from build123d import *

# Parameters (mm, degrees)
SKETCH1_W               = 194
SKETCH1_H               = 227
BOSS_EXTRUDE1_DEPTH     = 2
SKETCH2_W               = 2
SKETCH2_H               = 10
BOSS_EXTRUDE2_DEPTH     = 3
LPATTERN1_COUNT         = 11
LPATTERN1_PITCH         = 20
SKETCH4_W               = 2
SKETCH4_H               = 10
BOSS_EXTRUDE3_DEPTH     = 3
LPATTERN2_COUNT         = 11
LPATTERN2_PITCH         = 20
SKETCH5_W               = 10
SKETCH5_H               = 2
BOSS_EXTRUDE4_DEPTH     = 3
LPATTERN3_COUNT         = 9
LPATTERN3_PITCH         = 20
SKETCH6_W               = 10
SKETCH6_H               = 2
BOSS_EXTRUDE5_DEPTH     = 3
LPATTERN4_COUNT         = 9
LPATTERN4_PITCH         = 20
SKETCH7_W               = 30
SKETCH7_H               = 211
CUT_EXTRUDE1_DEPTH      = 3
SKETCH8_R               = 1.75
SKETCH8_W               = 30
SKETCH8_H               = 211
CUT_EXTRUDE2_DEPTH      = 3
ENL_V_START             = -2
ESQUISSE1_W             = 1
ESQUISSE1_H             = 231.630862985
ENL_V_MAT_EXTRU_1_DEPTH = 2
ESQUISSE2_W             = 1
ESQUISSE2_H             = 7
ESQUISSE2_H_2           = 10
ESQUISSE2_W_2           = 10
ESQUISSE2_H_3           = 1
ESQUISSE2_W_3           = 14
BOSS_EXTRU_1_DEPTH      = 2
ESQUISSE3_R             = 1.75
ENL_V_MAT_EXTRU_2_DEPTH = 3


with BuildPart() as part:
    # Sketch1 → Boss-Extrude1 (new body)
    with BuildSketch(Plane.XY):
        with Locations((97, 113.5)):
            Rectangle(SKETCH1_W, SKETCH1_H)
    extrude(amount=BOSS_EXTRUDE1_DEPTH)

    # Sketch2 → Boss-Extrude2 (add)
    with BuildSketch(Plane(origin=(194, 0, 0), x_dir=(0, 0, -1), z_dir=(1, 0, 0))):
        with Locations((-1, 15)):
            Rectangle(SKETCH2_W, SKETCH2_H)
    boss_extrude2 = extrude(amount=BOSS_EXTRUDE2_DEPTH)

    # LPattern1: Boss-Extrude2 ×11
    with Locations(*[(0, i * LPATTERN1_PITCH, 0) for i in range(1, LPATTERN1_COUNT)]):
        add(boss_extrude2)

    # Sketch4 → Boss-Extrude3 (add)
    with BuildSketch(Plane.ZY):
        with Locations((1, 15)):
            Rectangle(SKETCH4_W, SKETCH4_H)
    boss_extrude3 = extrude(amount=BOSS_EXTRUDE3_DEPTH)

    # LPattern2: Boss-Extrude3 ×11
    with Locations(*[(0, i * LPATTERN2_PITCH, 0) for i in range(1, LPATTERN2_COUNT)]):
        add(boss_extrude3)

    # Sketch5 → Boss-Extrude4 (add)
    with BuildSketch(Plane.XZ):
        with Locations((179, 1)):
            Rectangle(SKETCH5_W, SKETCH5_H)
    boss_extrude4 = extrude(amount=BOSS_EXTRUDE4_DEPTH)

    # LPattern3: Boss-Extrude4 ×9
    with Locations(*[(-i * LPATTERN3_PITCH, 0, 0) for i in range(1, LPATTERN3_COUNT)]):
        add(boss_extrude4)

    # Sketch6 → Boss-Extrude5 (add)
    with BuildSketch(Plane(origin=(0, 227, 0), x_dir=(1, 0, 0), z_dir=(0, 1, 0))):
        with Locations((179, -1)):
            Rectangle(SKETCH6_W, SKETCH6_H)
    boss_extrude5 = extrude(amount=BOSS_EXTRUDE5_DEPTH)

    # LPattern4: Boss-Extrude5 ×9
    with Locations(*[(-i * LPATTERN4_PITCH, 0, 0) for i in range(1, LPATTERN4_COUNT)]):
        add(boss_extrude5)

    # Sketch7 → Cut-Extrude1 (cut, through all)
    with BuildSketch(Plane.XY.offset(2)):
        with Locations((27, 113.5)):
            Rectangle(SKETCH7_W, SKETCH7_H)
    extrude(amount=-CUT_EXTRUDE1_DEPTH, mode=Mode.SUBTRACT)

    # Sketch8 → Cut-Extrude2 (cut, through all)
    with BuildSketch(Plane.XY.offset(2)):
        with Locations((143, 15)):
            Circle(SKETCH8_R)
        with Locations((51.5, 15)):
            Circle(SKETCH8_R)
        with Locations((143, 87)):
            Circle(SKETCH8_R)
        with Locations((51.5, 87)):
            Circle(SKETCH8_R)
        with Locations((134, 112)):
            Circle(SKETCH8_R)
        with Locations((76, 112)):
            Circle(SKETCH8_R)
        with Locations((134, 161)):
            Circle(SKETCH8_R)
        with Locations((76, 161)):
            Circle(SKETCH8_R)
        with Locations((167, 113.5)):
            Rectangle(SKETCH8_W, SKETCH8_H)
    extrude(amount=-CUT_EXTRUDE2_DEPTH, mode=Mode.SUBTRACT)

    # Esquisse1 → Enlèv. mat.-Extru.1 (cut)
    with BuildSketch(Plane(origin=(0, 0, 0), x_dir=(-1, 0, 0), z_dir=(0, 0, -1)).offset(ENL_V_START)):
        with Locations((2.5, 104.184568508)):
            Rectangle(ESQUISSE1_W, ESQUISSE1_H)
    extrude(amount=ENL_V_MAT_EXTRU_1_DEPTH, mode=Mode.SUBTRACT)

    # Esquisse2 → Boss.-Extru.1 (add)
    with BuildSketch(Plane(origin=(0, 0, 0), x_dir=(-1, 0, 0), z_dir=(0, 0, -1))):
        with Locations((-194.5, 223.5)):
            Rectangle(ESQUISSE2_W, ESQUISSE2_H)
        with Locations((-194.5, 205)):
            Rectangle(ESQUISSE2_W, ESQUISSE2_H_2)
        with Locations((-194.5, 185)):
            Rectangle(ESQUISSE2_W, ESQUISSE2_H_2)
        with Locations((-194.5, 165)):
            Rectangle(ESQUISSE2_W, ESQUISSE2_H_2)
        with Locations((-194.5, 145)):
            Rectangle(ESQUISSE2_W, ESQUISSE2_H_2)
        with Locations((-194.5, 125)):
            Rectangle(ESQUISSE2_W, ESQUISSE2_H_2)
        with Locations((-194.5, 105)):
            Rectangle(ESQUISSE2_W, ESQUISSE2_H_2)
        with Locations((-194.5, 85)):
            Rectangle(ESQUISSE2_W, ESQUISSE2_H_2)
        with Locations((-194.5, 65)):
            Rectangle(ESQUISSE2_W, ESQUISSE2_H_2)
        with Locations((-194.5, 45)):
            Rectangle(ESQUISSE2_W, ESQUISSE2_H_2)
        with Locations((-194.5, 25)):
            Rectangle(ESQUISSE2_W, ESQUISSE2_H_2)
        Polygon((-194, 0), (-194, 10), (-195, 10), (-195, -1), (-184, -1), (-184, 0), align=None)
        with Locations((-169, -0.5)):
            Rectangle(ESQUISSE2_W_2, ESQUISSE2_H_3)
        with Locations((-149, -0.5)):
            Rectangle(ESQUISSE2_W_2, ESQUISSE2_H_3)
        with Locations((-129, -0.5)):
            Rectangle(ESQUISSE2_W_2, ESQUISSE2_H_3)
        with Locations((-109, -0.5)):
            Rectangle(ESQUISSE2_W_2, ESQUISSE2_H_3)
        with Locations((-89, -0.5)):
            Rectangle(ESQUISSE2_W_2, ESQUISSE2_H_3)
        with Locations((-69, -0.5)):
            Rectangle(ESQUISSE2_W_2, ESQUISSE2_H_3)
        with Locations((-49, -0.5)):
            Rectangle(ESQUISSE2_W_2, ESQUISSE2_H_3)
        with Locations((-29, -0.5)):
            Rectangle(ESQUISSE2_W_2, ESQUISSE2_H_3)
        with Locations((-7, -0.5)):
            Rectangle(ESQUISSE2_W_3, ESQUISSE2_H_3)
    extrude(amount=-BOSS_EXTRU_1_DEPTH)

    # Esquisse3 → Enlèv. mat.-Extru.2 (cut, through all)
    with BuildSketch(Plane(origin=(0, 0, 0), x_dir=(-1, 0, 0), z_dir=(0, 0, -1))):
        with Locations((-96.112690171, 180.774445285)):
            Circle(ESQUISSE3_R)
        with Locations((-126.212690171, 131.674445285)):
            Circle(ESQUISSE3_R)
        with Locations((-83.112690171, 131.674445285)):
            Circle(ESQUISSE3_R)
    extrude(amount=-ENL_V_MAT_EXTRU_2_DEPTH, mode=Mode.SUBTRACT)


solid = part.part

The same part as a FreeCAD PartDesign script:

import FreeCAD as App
import Part
import Sketcher

V = App.Vector
Q = App.Units.Quantity

doc = App.newDocument("Part")
body = doc.addObject("PartDesign::Body", "Body")

# Sketch on XY plane
sketch1 = body.newObject("Sketcher::SketchObject", "Sketch")
sketch1.AttachmentSupport = (doc.getObject("XY_Plane"), [""])
sketch1.MapMode = "FlatFace"
sketch1.addGeometry([
    Part.LineSegment(V(0, 227, 0), V(0, 0, 0)),
    Part.LineSegment(V(0, 0, 0), V(194, 0, 0)),
    Part.LineSegment(V(194, 0, 0), V(194, 227, 0)),
    Part.LineSegment(V(194, 227, 0), V(0, 227, 0)),
], False)
sketch1.addConstraint([
    Sketcher.Constraint("Coincident", 0, 2, 1, 1),
    Sketcher.Constraint("Coincident", 1, 2, 2, 1),
    Sketcher.Constraint("Coincident", 2, 2, 3, 1),
    Sketcher.Constraint("Coincident", 3, 2, 0, 1),
    Sketcher.Constraint("Vertical", 0),
    Sketcher.Constraint("Horizontal", 1),
    Sketcher.Constraint("Vertical", 2),
    Sketcher.Constraint("Horizontal", 3),
    Sketcher.Constraint("Coincident", 0, 2, -1, 1),
    Sketcher.Constraint("DistanceX", 1, 1, 1, 2, Q("194 mm")),
    Sketcher.Constraint("DistanceY", 0, 2, 0, 1, Q("227 mm")),
])
pad1 = body.newObject("PartDesign::Pad", "Pad")
pad1.Profile = sketch1
pad1.Length = 2

# Sketch on YZ plane
sketch2 = body.newObject("Sketcher::SketchObject", "Sketch001")
sketch2.AttachmentSupport = (doc.getObject("YZ_Plane"), [""])
sketch2.MapMode = "FlatFace"
sketch2.AttachmentOffset = App.Placement(V(0, 0, 194), App.Rotation())
sketch2.addGeometry([
    Part.LineSegment(V(20, 2, 0), V(10, 2, 0)),
    Part.LineSegment(V(10, 2, 0), V(10, 0, 0)),
    Part.LineSegment(V(10, 0, 0), V(20, 0, 0)),
    Part.LineSegment(V(20, 0, 0), V(20, 2, 0)),
], False)
sketch2.addConstraint([
    Sketcher.Constraint("Coincident", 0, 2, 1, 1),
    Sketcher.Constraint("Coincident", 1, 2, 2, 1),
    Sketcher.Constraint("Coincident", 2, 2, 3, 1),
    Sketcher.Constraint("Coincident", 3, 2, 0, 1),
    Sketcher.Constraint("Horizontal", 0),
    Sketcher.Constraint("Vertical", 1),
    Sketcher.Constraint("Horizontal", 2),
    Sketcher.Constraint("Vertical", 3),
    Sketcher.Constraint("PointOnObject", 1, 2, -1),
    Sketcher.Constraint("DistanceX", 0, 2, 0, 1, Q("10 mm")),
    Sketcher.Constraint("DistanceY", 1, 2, 1, 1, Q("2 mm")),
    Sketcher.Constraint("DistanceX", -1, 1, 0, 2, Q("10 mm")),
])
pad2 = body.newObject("PartDesign::Pad", "Pad001")
pad2.Profile = sketch2
pad2.Length = 3
doc.recompute()

linearpattern = body.newObject("PartDesign::LinearPattern", "LinearPattern")
linearpattern.Originals = [pad2]
linearpattern.Direction = (doc.getObject("Y_Axis"), [""])
linearpattern.Mode = "offset"
linearpattern.Offset = 20
linearpattern.Occurrences = 11
body.Tip = linearpattern

# Sketch on YZ plane
sketch3 = body.newObject("Sketcher::SketchObject", "Sketch002")
sketch3.AttachmentSupport = (doc.getObject("YZ_Plane"), [""])
sketch3.MapMode = "FlatFace"
sketch3.addGeometry([
    Part.LineSegment(V(20, 0, 0), V(10, 0, 0)),
    Part.LineSegment(V(10, 0, 0), V(10, 2, 0)),
    Part.LineSegment(V(10, 2, 0), V(20, 2, 0)),
    Part.LineSegment(V(20, 2, 0), V(20, 0, 0)),
], False)
sketch3.addConstraint([
    Sketcher.Constraint("Coincident", 0, 2, 1, 1),
    Sketcher.Constraint("Coincident", 1, 2, 2, 1),
    Sketcher.Constraint("Coincident", 2, 2, 3, 1),
    Sketcher.Constraint("Coincident", 3, 2, 0, 1),
    Sketcher.Constraint("Horizontal", 0),
    Sketcher.Constraint("Vertical", 1),
    Sketcher.Constraint("Horizontal", 2),
    Sketcher.Constraint("Vertical", 3),
    Sketcher.Constraint("PointOnObject", 0, 2, -1),
    Sketcher.Constraint("DistanceX", 0, 2, 0, 1, Q("10 mm")),
    Sketcher.Constraint("DistanceY", 1, 1, 1, 2, Q("2 mm")),
    Sketcher.Constraint("DistanceX", -1, 1, 0, 2, Q("10 mm")),
])
pad3 = body.newObject("PartDesign::Pad", "Pad002")
pad3.Profile = sketch3
pad3.Length = 3
pad3.Reversed = True
doc.recompute()

linearpattern2 = body.newObject("PartDesign::LinearPattern", "LinearPattern001")
linearpattern2.Originals = [pad3]
linearpattern2.Direction = (doc.getObject("Y_Axis"), [""])
linearpattern2.Mode = "offset"
linearpattern2.Offset = 20
linearpattern2.Occurrences = 11
body.Tip = linearpattern2

# Sketch on XZ plane
sketch4 = body.newObject("Sketcher::SketchObject", "Sketch003")
sketch4.AttachmentSupport = (doc.getObject("XZ_Plane"), [""])
sketch4.MapMode = "FlatFace"
sketch4.addGeometry([
    Part.LineSegment(V(174, 2, 0), V(174, 0, 0)),
    Part.LineSegment(V(174, 0, 0), V(184, 0, 0)),
    Part.LineSegment(V(184, 0, 0), V(184, 2, 0)),
    Part.LineSegment(V(184, 2, 0), V(174, 2, 0)),
], False)
sketch4.addConstraint([
    Sketcher.Constraint("Coincident", 0, 2, 1, 1),
    Sketcher.Constraint("Coincident", 1, 2, 2, 1),
    Sketcher.Constraint("Coincident", 2, 2, 3, 1),
    Sketcher.Constraint("Coincident", 3, 2, 0, 1),
    Sketcher.Constraint("Vertical", 0),
    Sketcher.Constraint("Horizontal", 1),
    Sketcher.Constraint("Vertical", 2),
    Sketcher.Constraint("Horizontal", 3),
    Sketcher.Constraint("PointOnObject", 0, 2, -1),
    Sketcher.Constraint("DistanceX", 1, 1, 1, 2, Q("10 mm")),
    Sketcher.Constraint("DistanceY", 0, 2, 0, 1, Q("2 mm")),
    Sketcher.Constraint("DistanceX", -1, 1, 0, 2, Q("174 mm")),
])
pad4 = body.newObject("PartDesign::Pad", "Pad003")
pad4.Profile = sketch4
pad4.Length = 3
doc.recompute()

linearpattern3 = body.newObject("PartDesign::LinearPattern", "LinearPattern002")
linearpattern3.Originals = [pad4]
linearpattern3.Direction = (doc.getObject("X_Axis"), [""])
linearpattern3.Mode = "offset"
linearpattern3.Offset = 20
linearpattern3.Occurrences = 9
linearpattern3.Reversed = True
body.Tip = linearpattern3

# Sketch on XZ plane
sketch5 = body.newObject("Sketcher::SketchObject", "Sketch004")
sketch5.AttachmentSupport = (doc.getObject("XZ_Plane"), [""])
sketch5.MapMode = "FlatFace"
sketch5.AttachmentOffset = App.Placement(V(0, 0, -227), App.Rotation())
sketch5.addGeometry([
    Part.LineSegment(V(174, 0, 0), V(174, 2, 0)),
    Part.LineSegment(V(174, 2, 0), V(184, 2, 0)),
    Part.LineSegment(V(184, 2, 0), V(184, 0, 0)),
    Part.LineSegment(V(184, 0, 0), V(174, 0, 0)),
], False)
sketch5.addConstraint([
    Sketcher.Constraint("Coincident", 0, 2, 1, 1),
    Sketcher.Constraint("Coincident", 1, 2, 2, 1),
    Sketcher.Constraint("Coincident", 2, 2, 3, 1),
    Sketcher.Constraint("Coincident", 3, 2, 0, 1),
    Sketcher.Constraint("Vertical", 0),
    Sketcher.Constraint("Horizontal", 1),
    Sketcher.Constraint("Vertical", 2),
    Sketcher.Constraint("Horizontal", 3),
    Sketcher.Constraint("PointOnObject", 2, 2, -1),
    Sketcher.Constraint("DistanceX", 1, 1, 1, 2, Q("10 mm")),
    Sketcher.Constraint("DistanceY", 0, 1, 0, 2, Q("2 mm")),
    Sketcher.Constraint("DistanceX", -1, 1, 0, 2, Q("174 mm")),
])
pad5 = body.newObject("PartDesign::Pad", "Pad004")
pad5.Profile = sketch5
pad5.Length = 3
pad5.Reversed = True
doc.recompute()

linearpattern4 = body.newObject("PartDesign::LinearPattern", "LinearPattern003")
linearpattern4.Originals = [pad5]
linearpattern4.Direction = (doc.getObject("X_Axis"), [""])
linearpattern4.Mode = "offset"
linearpattern4.Offset = 20
linearpattern4.Occurrences = 9
linearpattern4.Reversed = True
body.Tip = linearpattern4

# Sketch on XY plane
sketch6 = body.newObject("Sketcher::SketchObject", "Sketch005")
sketch6.AttachmentSupport = (doc.getObject("XY_Plane"), [""])
sketch6.MapMode = "FlatFace"
sketch6.AttachmentOffset = App.Placement(V(0, 0, 2), App.Rotation())
sketch6.addGeometry([
    Part.LineSegment(V(12, 219, 0), V(12, 8, 0)),
    Part.LineSegment(V(12, 8, 0), V(42, 8, 0)),
    Part.LineSegment(V(42, 8, 0), V(42, 219, 0)),
    Part.LineSegment(V(42, 219, 0), V(12, 219, 0)),
], False)
sketch6.addConstraint([
    Sketcher.Constraint("Coincident", 0, 2, 1, 1),
    Sketcher.Constraint("Coincident", 1, 2, 2, 1),
    Sketcher.Constraint("Coincident", 2, 2, 3, 1),
    Sketcher.Constraint("Coincident", 3, 2, 0, 1),
    Sketcher.Constraint("Vertical", 0),
    Sketcher.Constraint("Horizontal", 1),
    Sketcher.Constraint("Vertical", 2),
    Sketcher.Constraint("Horizontal", 3),
    Sketcher.Constraint("DistanceX", 1, 1, 1, 2, Q("30 mm")),
    Sketcher.Constraint("DistanceY", 0, 2, 0, 1, Q("211 mm")),
    Sketcher.Constraint("DistanceX", -1, 1, 0, 2, Q("12 mm")),
    Sketcher.Constraint("DistanceY", -1, 1, 0, 2, Q("8 mm")),
])
pocket1 = body.newObject("PartDesign::Pocket", "Pocket")
pocket1.Profile = sketch6
pocket1.Type = "ThroughAll"

# Sketch on XY plane
sketch7 = body.newObject("Sketcher::SketchObject", "Sketch006")
sketch7.AttachmentSupport = (doc.getObject("XY_Plane"), [""])
sketch7.MapMode = "FlatFace"
sketch7.AttachmentOffset = App.Placement(V(0, 0, 2), App.Rotation())
sketch7.addGeometry([
    Part.Circle(V(143, 15, 0), V(0, 0, 1), 1.8),  # 0
    Part.Circle(V(51.5, 15, 0), V(0, 0, 1), 1.8),  # 1
    Part.Circle(V(143, 87, 0), V(0, 0, 1), 1.8),  # 2
    Part.Circle(V(51.5, 87, 0), V(0, 0, 1), 1.8),  # 3
    Part.Circle(V(134, 112, 0), V(0, 0, 1), 1.8),  # 4
    Part.Circle(V(76, 112, 0), V(0, 0, 1), 1.8),  # 5
    Part.Circle(V(134, 161, 0), V(0, 0, 1), 1.8),  # 6
    Part.Circle(V(76, 161, 0), V(0, 0, 1), 1.8),  # 7
    Part.LineSegment(V(152, 219, 0), V(152, 8, 0)),  # 8
    Part.LineSegment(V(152, 8, 0), V(182, 8, 0)),  # 9
    Part.LineSegment(V(182, 8, 0), V(182, 219, 0)),  # 10
    Part.LineSegment(V(182, 219, 0), V(152, 219, 0)),  # 11
], False)
sketch7.addConstraint([
    Sketcher.Constraint("Coincident", 8, 2, 9, 1),
    Sketcher.Constraint("Coincident", 9, 2, 10, 1),
    Sketcher.Constraint("Coincident", 10, 2, 11, 1),
    Sketcher.Constraint("Coincident", 11, 2, 8, 1),
    Sketcher.Constraint("Vertical", 8),
    Sketcher.Constraint("Horizontal", 9),
    Sketcher.Constraint("Vertical", 10),
    Sketcher.Constraint("Horizontal", 11),
    Sketcher.Constraint("Equal", 0, 1),
    Sketcher.Constraint("Equal", 1, 2),
    Sketcher.Constraint("Equal", 2, 3),
    Sketcher.Constraint("Equal", 3, 4),
    Sketcher.Constraint("Equal", 4, 5),
    Sketcher.Constraint("Equal", 5, 6),
    Sketcher.Constraint("Equal", 6, 7),
    Sketcher.Constraint("Horizontal", 0, 3, 1, 3),
    Sketcher.Constraint("Horizontal", 2, 3, 3, 3),
    Sketcher.Constraint("Horizontal", 4, 3, 5, 3),
    Sketcher.Constraint("Horizontal", 6, 3, 7, 3),
    Sketcher.Constraint("Vertical", 0, 3, 2, 3),
    Sketcher.Constraint("Vertical", 1, 3, 3, 3),
    Sketcher.Constraint("Vertical", 4, 3, 6, 3),
    Sketcher.Constraint("Vertical", 5, 3, 7, 3),
    Sketcher.Constraint("Diameter", 0, Q("3.5 mm")),
    Sketcher.Constraint("DistanceX", 9, 1, 9, 2, Q("30 mm")),
    Sketcher.Constraint("DistanceY", 8, 2, 8, 1, Q("211 mm")),
    Sketcher.Constraint("DistanceX", -1, 1, 0, 3, Q("143 mm")),
    Sketcher.Constraint("DistanceY", -1, 1, 0, 3, Q("15 mm")),
    Sketcher.Constraint("DistanceY", -1, 1, 2, 3, Q("87 mm")),
    Sketcher.Constraint("DistanceX", -1, 1, 4, 3, Q("134 mm")),
    Sketcher.Constraint("DistanceY", -1, 1, 4, 3, Q("112 mm")),
    Sketcher.Constraint("DistanceX", -1, 1, 5, 3, Q("76 mm")),
    Sketcher.Constraint("DistanceY", -1, 1, 6, 3, Q("161 mm")),
    Sketcher.Constraint("DistanceX", -1, 1, 8, 2, Q("152 mm")),
    Sketcher.Constraint("DistanceY", -1, 1, 8, 2, Q("8 mm")),
    Sketcher.Constraint("DistanceX", -1, 1, 1, 3, Q("51.5 mm")),
])
pocket2 = body.newObject("PartDesign::Pocket", "Pocket001")
pocket2.Profile = sketch7
pocket2.Type = "ThroughAll"

# Sketch on XY plane
sketch8 = body.newObject("Sketcher::SketchObject", "Sketch007")
sketch8.AttachmentSupport = (doc.getObject("XY_Plane"), [""])
sketch8.MapMode = "FlatFace"
sketch8.AttachmentOffset = App.Placement(V(0, 0, 2), App.Rotation())
sketch8.addGeometry([
    Part.LineSegment(V(-2, 220, 0), V(-2, -11.6, 0)),
    Part.LineSegment(V(-2, -11.6, 0), V(-3, -11.6, 0)),
    Part.LineSegment(V(-3, -11.6, 0), V(-3, 220, 0)),
    Part.LineSegment(V(-3, 220, 0), V(-2, 220, 0)),
], False)
sketch8.addConstraint([
    Sketcher.Constraint("Coincident", 0, 2, 1, 1),
    Sketcher.Constraint("Coincident", 1, 2, 2, 1),
    Sketcher.Constraint("Coincident", 2, 2, 3, 1),
    Sketcher.Constraint("Coincident", 3, 2, 0, 1),
    Sketcher.Constraint("Vertical", 0),
    Sketcher.Constraint("Horizontal", 1),
    Sketcher.Constraint("Vertical", 2),
    Sketcher.Constraint("Horizontal", 3),
    Sketcher.Constraint("DistanceX", 1, 2, 1, 1, Q("1 mm")),
    Sketcher.Constraint("DistanceX", 0, 2, -1, 1, Q("2 mm")),
    Sketcher.Constraint("DistanceY", -1, 1, 2, 2, Q("220 mm")),
    Sketcher.Constraint("DistanceY", 0, 2, 0, 1, Q("231.630863 mm")),
])
pocket3 = body.newObject("PartDesign::Pocket", "Pocket002")
pocket3.Profile = sketch8
pocket3.Length = 2

# Sketch on XY plane
sketch9 = body.newObject("Sketcher::SketchObject", "Sketch008")
sketch9.AttachmentSupport = (doc.getObject("XY_Plane"), [""])
sketch9.MapMode = "FlatFace"
sketch9.addGeometry([
    Part.LineSegment(V(195, 227, 0), V(195, 220, 0)),  # 0
    Part.LineSegment(V(195, 220, 0), V(194, 220, 0)),  # 1
    Part.LineSegment(V(194, 220, 0), V(194, 227, 0)),  # 2
    Part.LineSegment(V(194, 227, 0), V(195, 227, 0)),  # 3
    Part.LineSegment(V(195, 210, 0), V(195, 200, 0)),  # 4
    Part.LineSegment(V(195, 200, 0), V(194, 200, 0)),  # 5
    Part.LineSegment(V(194, 200, 0), V(194, 210, 0)),  # 6
    Part.LineSegment(V(194, 210, 0), V(195, 210, 0)),  # 7
    Part.LineSegment(V(195, 190, 0), V(195, 180, 0)),  # 8
    Part.LineSegment(V(195, 180, 0), V(194, 180, 0)),  # 9
    Part.LineSegment(V(194, 180, 0), V(194, 190, 0)),  # 10
    Part.LineSegment(V(194, 190, 0), V(195, 190, 0)),  # 11
    Part.LineSegment(V(195, 170, 0), V(195, 160, 0)),  # 12
    Part.LineSegment(V(195, 160, 0), V(194, 160, 0)),  # 13
    Part.LineSegment(V(194, 160, 0), V(194, 170, 0)),  # 14
    Part.LineSegment(V(194, 170, 0), V(195, 170, 0)),  # 15
    Part.LineSegment(V(195, 150, 0), V(195, 140, 0)),  # 16
    Part.LineSegment(V(195, 140, 0), V(194, 140, 0)),  # 17
    Part.LineSegment(V(194, 140, 0), V(194, 150, 0)),  # 18
    Part.LineSegment(V(194, 150, 0), V(195, 150, 0)),  # 19
    Part.LineSegment(V(195, 130, 0), V(195, 120, 0)),  # 20
    Part.LineSegment(V(195, 120, 0), V(194, 120, 0)),  # 21
    Part.LineSegment(V(194, 120, 0), V(194, 130, 0)),  # 22
    Part.LineSegment(V(194, 130, 0), V(195, 130, 0)),  # 23
    Part.LineSegment(V(195, 110, 0), V(195, 100, 0)),  # 24
    Part.LineSegment(V(195, 100, 0), V(194, 100, 0)),  # 25
    Part.LineSegment(V(194, 100, 0), V(194, 110, 0)),  # 26
    Part.LineSegment(V(194, 110, 0), V(195, 110, 0)),  # 27
    Part.LineSegment(V(195, 90, 0), V(195, 80, 0)),  # 28
    Part.LineSegment(V(195, 80, 0), V(194, 80, 0)),  # 29
    Part.LineSegment(V(194, 80, 0), V(194, 90, 0)),  # 30
    Part.LineSegment(V(194, 90, 0), V(195, 90, 0)),  # 31
    Part.LineSegment(V(195, 70, 0), V(195, 60, 0)),  # 32
    Part.LineSegment(V(195, 60, 0), V(194, 60, 0)),  # 33
    Part.LineSegment(V(194, 60, 0), V(194, 70, 0)),  # 34
    Part.LineSegment(V(194, 70, 0), V(195, 70, 0)),  # 35
    Part.LineSegment(V(195, 50, 0), V(195, 40, 0)),  # 36
    Part.LineSegment(V(195, 40, 0), V(194, 40, 0)),  # 37
    Part.LineSegment(V(194, 40, 0), V(194, 50, 0)),  # 38
    Part.LineSegment(V(194, 50, 0), V(195, 50, 0)),  # 39
    Part.LineSegment(V(195, 30, 0), V(195, 20, 0)),  # 40
    Part.LineSegment(V(195, 20, 0), V(194, 20, 0)),  # 41
    Part.LineSegment(V(194, 20, 0), V(194, 30, 0)),  # 42
    Part.LineSegment(V(194, 30, 0), V(195, 30, 0)),  # 43
    Part.LineSegment(V(194, 0, 0), V(194, 10, 0)),  # 44
    Part.LineSegment(V(194, 10, 0), V(195, 10, 0)),  # 45
    Part.LineSegment(V(195, 10, 0), V(195, -1, 0)),  # 46
    Part.LineSegment(V(195, -1, 0), V(184, -1, 0)),  # 47
    Part.LineSegment(V(184, -1, 0), V(184, 0, 0)),  # 48
    Part.LineSegment(V(184, 0, 0), V(194, 0, 0)),  # 49
    Part.LineSegment(V(174, 0, 0), V(174, -1, 0)),  # 50
    Part.LineSegment(V(174, -1, 0), V(164, -1, 0)),  # 51
    Part.LineSegment(V(164, -1, 0), V(164, 0, 0)),  # 52
    Part.LineSegment(V(164, 0, 0), V(174, 0, 0)),  # 53
    Part.LineSegment(V(154, 0, 0), V(154, -1, 0)),  # 54
    Part.LineSegment(V(154, -1, 0), V(144, -1, 0)),  # 55
    Part.LineSegment(V(144, -1, 0), V(144, 0, 0)),  # 56
    Part.LineSegment(V(144, 0, 0), V(154, 0, 0)),  # 57
    Part.LineSegment(V(134, 0, 0), V(134, -1, 0)),  # 58
    Part.LineSegment(V(134, -1, 0), V(124, -1, 0)),  # 59
    Part.LineSegment(V(124, -1, 0), V(124, 0, 0)),  # 60
    Part.LineSegment(V(124, 0, 0), V(134, 0, 0)),  # 61
    Part.LineSegment(V(114, 0, 0), V(114, -1, 0)),  # 62
    Part.LineSegment(V(114, -1, 0), V(104, -1, 0)),  # 63
    Part.LineSegment(V(104, -1, 0), V(104, 0, 0)),  # 64
    Part.LineSegment(V(104, 0, 0), V(114, 0, 0)),  # 65
    Part.LineSegment(V(94, 0, 0), V(94, -1, 0)),  # 66
    Part.LineSegment(V(94, -1, 0), V(84, -1, 0)),  # 67
    Part.LineSegment(V(84, -1, 0), V(84, 0, 0)),  # 68
    Part.LineSegment(V(84, 0, 0), V(94, 0, 0)),  # 69
    Part.LineSegment(V(74, 0, 0), V(74, -1, 0)),  # 70
    Part.LineSegment(V(74, -1, 0), V(64, -1, 0)),  # 71
    Part.LineSegment(V(64, -1, 0), V(64, 0, 0)),  # 72
    Part.LineSegment(V(64, 0, 0), V(74, 0, 0)),  # 73
    Part.LineSegment(V(54, 0, 0), V(54, -1, 0)),  # 74
    Part.LineSegment(V(54, -1, 0), V(44, -1, 0)),  # 75
    Part.LineSegment(V(44, -1, 0), V(44, 0, 0)),  # 76
    Part.LineSegment(V(44, 0, 0), V(54, 0, 0)),  # 77
    Part.LineSegment(V(34, 0, 0), V(34, -1, 0)),  # 78
    Part.LineSegment(V(34, -1, 0), V(24, -1, 0)),  # 79
    Part.LineSegment(V(24, -1, 0), V(24, 0, 0)),  # 80
    Part.LineSegment(V(24, 0, 0), V(34, 0, 0)),  # 81
    Part.LineSegment(V(14, 0, 0), V(14, -1, 0)),  # 82
    Part.LineSegment(V(14, -1, 0), V(0, -1, 0)),  # 83
    Part.LineSegment(V(0, -1, 0), V(0, 0, 0)),  # 84
    Part.LineSegment(V(0, 0, 0), V(14, 0, 0)),  # 85
], False)
sketch9.addConstraint([
    Sketcher.Constraint("Coincident", 0, 2, 1, 1),
    Sketcher.Constraint("Coincident", 1, 2, 2, 1),
    Sketcher.Constraint("Coincident", 2, 2, 3, 1),
    Sketcher.Constraint("Coincident", 3, 2, 0, 1),
    Sketcher.Constraint("Coincident", 4, 2, 5, 1),
    Sketcher.Constraint("Coincident", 5, 2, 6, 1),
    Sketcher.Constraint("Coincident", 6, 2, 7, 1),
    Sketcher.Constraint("Coincident", 7, 2, 4, 1),
    Sketcher.Constraint("Coincident", 8, 2, 9, 1),
    Sketcher.Constraint("Coincident", 9, 2, 10, 1),
    Sketcher.Constraint("Coincident", 10, 2, 11, 1),
    Sketcher.Constraint("Coincident", 11, 2, 8, 1),
    Sketcher.Constraint("Coincident", 12, 2, 13, 1),
    Sketcher.Constraint("Coincident", 13, 2, 14, 1),
    Sketcher.Constraint("Coincident", 14, 2, 15, 1),
    Sketcher.Constraint("Coincident", 15, 2, 12, 1),
    Sketcher.Constraint("Coincident", 16, 2, 17, 1),
    Sketcher.Constraint("Coincident", 17, 2, 18, 1),
    Sketcher.Constraint("Coincident", 18, 2, 19, 1),
    Sketcher.Constraint("Coincident", 19, 2, 16, 1),
    Sketcher.Constraint("Coincident", 20, 2, 21, 1),
    Sketcher.Constraint("Coincident", 21, 2, 22, 1),
    Sketcher.Constraint("Coincident", 22, 2, 23, 1),
    Sketcher.Constraint("Coincident", 23, 2, 20, 1),
    Sketcher.Constraint("Coincident", 24, 2, 25, 1),
    Sketcher.Constraint("Coincident", 25, 2, 26, 1),
    Sketcher.Constraint("Coincident", 26, 2, 27, 1),
    Sketcher.Constraint("Coincident", 27, 2, 24, 1),
    Sketcher.Constraint("Coincident", 28, 2, 29, 1),
    Sketcher.Constraint("Coincident", 29, 2, 30, 1),
    Sketcher.Constraint("Coincident", 30, 2, 31, 1),
    Sketcher.Constraint("Coincident", 31, 2, 28, 1),
    Sketcher.Constraint("Coincident", 32, 2, 33, 1),
    Sketcher.Constraint("Coincident", 33, 2, 34, 1),
    Sketcher.Constraint("Coincident", 34, 2, 35, 1),
    Sketcher.Constraint("Coincident", 35, 2, 32, 1),
    Sketcher.Constraint("Coincident", 36, 2, 37, 1),
    Sketcher.Constraint("Coincident", 37, 2, 38, 1),
    Sketcher.Constraint("Coincident", 38, 2, 39, 1),
    Sketcher.Constraint("Coincident", 39, 2, 36, 1),
    Sketcher.Constraint("Coincident", 40, 2, 41, 1),
    Sketcher.Constraint("Coincident", 41, 2, 42, 1),
    Sketcher.Constraint("Coincident", 42, 2, 43, 1),
    Sketcher.Constraint("Coincident", 43, 2, 40, 1),
    Sketcher.Constraint("Coincident", 44, 2, 45, 1),
    Sketcher.Constraint("Coincident", 45, 2, 46, 1),
    Sketcher.Constraint("Coincident", 46, 2, 47, 1),
    Sketcher.Constraint("Coincident", 47, 2, 48, 1),
    Sketcher.Constraint("Coincident", 48, 2, 49, 1),
    Sketcher.Constraint("Coincident", 49, 2, 44, 1),
    Sketcher.Constraint("Coincident", 50, 2, 51, 1),
    Sketcher.Constraint("Coincident", 51, 2, 52, 1),
    Sketcher.Constraint("Coincident", 52, 2, 53, 1),
    Sketcher.Constraint("Coincident", 53, 2, 50, 1),
    Sketcher.Constraint("Coincident", 54, 2, 55, 1),
    Sketcher.Constraint("Coincident", 55, 2, 56, 1),
    Sketcher.Constraint("Coincident", 56, 2, 57, 1),
    Sketcher.Constraint("Coincident", 57, 2, 54, 1),
    Sketcher.Constraint("Coincident", 58, 2, 59, 1),
    Sketcher.Constraint("Coincident", 59, 2, 60, 1),
    Sketcher.Constraint("Coincident", 60, 2, 61, 1),
    Sketcher.Constraint("Coincident", 61, 2, 58, 1),
    Sketcher.Constraint("Coincident", 62, 2, 63, 1),
    Sketcher.Constraint("Coincident", 63, 2, 64, 1),
    Sketcher.Constraint("Coincident", 64, 2, 65, 1),
    Sketcher.Constraint("Coincident", 65, 2, 62, 1),
    Sketcher.Constraint("Coincident", 66, 2, 67, 1),
    Sketcher.Constraint("Coincident", 67, 2, 68, 1),
    Sketcher.Constraint("Coincident", 68, 2, 69, 1),
    Sketcher.Constraint("Coincident", 69, 2, 66, 1),
    Sketcher.Constraint("Coincident", 70, 2, 71, 1),
    Sketcher.Constraint("Coincident", 71, 2, 72, 1),
    Sketcher.Constraint("Coincident", 72, 2, 73, 1),
    Sketcher.Constraint("Coincident", 73, 2, 70, 1),
    Sketcher.Constraint("Coincident", 74, 2, 75, 1),
    Sketcher.Constraint("Coincident", 75, 2, 76, 1),
    Sketcher.Constraint("Coincident", 76, 2, 77, 1),
    Sketcher.Constraint("Coincident", 77, 2, 74, 1),
    Sketcher.Constraint("Coincident", 78, 2, 79, 1),
    Sketcher.Constraint("Coincident", 79, 2, 80, 1),
    Sketcher.Constraint("Coincident", 80, 2, 81, 1),
    Sketcher.Constraint("Coincident", 81, 2, 78, 1),
    Sketcher.Constraint("Coincident", 82, 2, 83, 1),
    Sketcher.Constraint("Coincident", 83, 2, 84, 1),
    Sketcher.Constraint("Coincident", 84, 2, 85, 1),
    Sketcher.Constraint("Coincident", 85, 2, 82, 1),
    Sketcher.Constraint("Vertical", 0),
    Sketcher.Constraint("Horizontal", 1),
    Sketcher.Constraint("Vertical", 2),
    Sketcher.Constraint("Horizontal", 3),
    Sketcher.Constraint("Vertical", 4),
    Sketcher.Constraint("Horizontal", 5),
    Sketcher.Constraint("Vertical", 6),
    Sketcher.Constraint("Horizontal", 7),
    Sketcher.Constraint("Vertical", 8),
    Sketcher.Constraint("Horizontal", 9),
    Sketcher.Constraint("Vertical", 10),
    Sketcher.Constraint("Horizontal", 11),
    Sketcher.Constraint("Vertical", 12),
    Sketcher.Constraint("Horizontal", 13),
    Sketcher.Constraint("Vertical", 14),
    Sketcher.Constraint("Horizontal", 15),
    Sketcher.Constraint("Vertical", 16),
    Sketcher.Constraint("Horizontal", 17),
    Sketcher.Constraint("Vertical", 18),
    Sketcher.Constraint("Horizontal", 19),
    Sketcher.Constraint("Vertical", 20),
    Sketcher.Constraint("Horizontal", 21),
    Sketcher.Constraint("Vertical", 22),
    Sketcher.Constraint("Horizontal", 23),
    Sketcher.Constraint("Vertical", 24),
    Sketcher.Constraint("Horizontal", 25),
    Sketcher.Constraint("Vertical", 26),
    Sketcher.Constraint("Horizontal", 27),
    Sketcher.Constraint("Vertical", 28),
    Sketcher.Constraint("Horizontal", 29),
    Sketcher.Constraint("Vertical", 30),
    Sketcher.Constraint("Horizontal", 31),
    Sketcher.Constraint("Vertical", 32),
    Sketcher.Constraint("Horizontal", 33),
    Sketcher.Constraint("Vertical", 34),
    Sketcher.Constraint("Horizontal", 35),
    Sketcher.Constraint("Vertical", 36),
    Sketcher.Constraint("Horizontal", 37),
    Sketcher.Constraint("Vertical", 38),
    Sketcher.Constraint("Horizontal", 39),
    Sketcher.Constraint("Vertical", 40),
    Sketcher.Constraint("Horizontal", 41),
    Sketcher.Constraint("Vertical", 42),
    Sketcher.Constraint("Horizontal", 43),
    Sketcher.Constraint("Vertical", 44),
    Sketcher.Constraint("Horizontal", 45),
    Sketcher.Constraint("Vertical", 46),
    Sketcher.Constraint("Horizontal", 47),
    Sketcher.Constraint("Vertical", 48),
    Sketcher.Constraint("Horizontal", 49),
    Sketcher.Constraint("Vertical", 50),
    Sketcher.Constraint("Horizontal", 51),
    Sketcher.Constraint("Vertical", 52),
    Sketcher.Constraint("Horizontal", 53),
    Sketcher.Constraint("Vertical", 54),
    Sketcher.Constraint("Horizontal", 55),
    Sketcher.Constraint("Vertical", 56),
    Sketcher.Constraint("Horizontal", 57),
    Sketcher.Constraint("Vertical", 58),
    Sketcher.Constraint("Horizontal", 59),
    Sketcher.Constraint("Vertical", 60),
    Sketcher.Constraint("Horizontal", 61),
    Sketcher.Constraint("Vertical", 62),
    Sketcher.Constraint("Horizontal", 63),
    Sketcher.Constraint("Vertical", 64),
    Sketcher.Constraint("Horizontal", 65),
    Sketcher.Constraint("Vertical", 66),
    Sketcher.Constraint("Horizontal", 67),
    Sketcher.Constraint("Vertical", 68),
    Sketcher.Constraint("Horizontal", 69),
    Sketcher.Constraint("Vertical", 70),
    Sketcher.Constraint("Horizontal", 71),
    Sketcher.Constraint("Vertical", 72),
    Sketcher.Constraint("Horizontal", 73),
    Sketcher.Constraint("Vertical", 74),
    Sketcher.Constraint("Horizontal", 75),
    Sketcher.Constraint("Vertical", 76),
    Sketcher.Constraint("Horizontal", 77),
    Sketcher.Constraint("Vertical", 78),
    Sketcher.Constraint("Horizontal", 79),
    Sketcher.Constraint("Vertical", 80),
    Sketcher.Constraint("Horizontal", 81),
    Sketcher.Constraint("Vertical", 82),
    Sketcher.Constraint("Horizontal", 83),
    Sketcher.Constraint("Vertical", 84),
    Sketcher.Constraint("Horizontal", 85),
    Sketcher.Constraint("Coincident", 84, 2, -1, 1),
    Sketcher.Constraint("PointOnObject", 48, 2, -1),
    Sketcher.Constraint("PointOnObject", 52, 2, -1),
    Sketcher.Constraint("PointOnObject", 56, 2, -1),
    Sketcher.Constraint("PointOnObject", 60, 2, -1),
    Sketcher.Constraint("PointOnObject", 64, 2, -1),
    Sketcher.Constraint("PointOnObject", 68, 2, -1),
    Sketcher.Constraint("PointOnObject", 72, 2, -1),
    Sketcher.Constraint("PointOnObject", 76, 2, -1),
    Sketcher.Constraint("PointOnObject", 80, 2, -1),
    Sketcher.Constraint("Horizontal", 47, 2, 50, 2),
    Sketcher.Constraint("Horizontal", 51, 2, 54, 2),
    Sketcher.Constraint("Horizontal", 55, 2, 58, 2),
    Sketcher.Constraint("Horizontal", 59, 2, 62, 2),
    Sketcher.Constraint("Horizontal", 63, 2, 66, 2),
    Sketcher.Constraint("Horizontal", 67, 2, 70, 2),
    Sketcher.Constraint("Horizontal", 71, 2, 74, 2),
    Sketcher.Constraint("Horizontal", 75, 2, 78, 2),
    Sketcher.Constraint("Horizontal", 79, 2, 82, 2),
    Sketcher.Constraint("Vertical", 3, 2, 4, 2),
    Sketcher.Constraint("Vertical", 2, 2, 5, 2),
    Sketcher.Constraint("Vertical", 7, 2, 8, 2),
    Sketcher.Constraint("Vertical", 6, 2, 9, 2),
    Sketcher.Constraint("Vertical", 11, 2, 12, 2),
    Sketcher.Constraint("Vertical", 10, 2, 13, 2),
    Sketcher.Constraint("Vertical", 15, 2, 16, 2),
    Sketcher.Constraint("Vertical", 14, 2, 17, 2),
    Sketcher.Constraint("Vertical", 19, 2, 20, 2),
    Sketcher.Constraint("Vertical", 18, 2, 21, 2),
    Sketcher.Constraint("Vertical", 23, 2, 24, 2),
    Sketcher.Constraint("Vertical", 22, 2, 25, 2),
    Sketcher.Constraint("Vertical", 27, 2, 28, 2),
    Sketcher.Constraint("Vertical", 26, 2, 29, 2),
    Sketcher.Constraint("Vertical", 31, 2, 32, 2),
    Sketcher.Constraint("Vertical", 30, 2, 33, 2),
    Sketcher.Constraint("Vertical", 35, 2, 36, 2),
    Sketcher.Constraint("Vertical", 34, 2, 37, 2),
    Sketcher.Constraint("Vertical", 39, 2, 40, 2),
    Sketcher.Constraint("Vertical", 38, 2, 41, 2),
    Sketcher.Constraint("Vertical", 42, 2, 44, 2),
    Sketcher.Constraint("Vertical", 43, 2, 45, 2),
    Sketcher.Constraint("Equal", 49, 51),
    Sketcher.Constraint("Equal", 53, 55),
    Sketcher.Constraint("Equal", 57, 59),
    Sketcher.Constraint("Equal", 61, 63),
    Sketcher.Constraint("Equal", 65, 67),
    Sketcher.Constraint("Equal", 69, 71),
    Sketcher.Constraint("Equal", 73, 75),
    Sketcher.Constraint("Equal", 77, 79),
    Sketcher.Constraint("Equal", 81, 4),
    Sketcher.Constraint("Equal", 6, 8),
    Sketcher.Constraint("Equal", 10, 12),
    Sketcher.Constraint("Equal", 14, 16),
    Sketcher.Constraint("Equal", 18, 20),
    Sketcher.Constraint("Equal", 22, 24),
    Sketcher.Constraint("Equal", 26, 28),
    Sketcher.Constraint("Equal", 30, 32),
    Sketcher.Constraint("Equal", 34, 36),
    Sketcher.Constraint("Equal", 38, 40),
    Sketcher.Constraint("Equal", 42, 44),
    Sketcher.Constraint("Equal", 47, 46),
    Sketcher.Constraint("DistanceX", 1, 2, 1, 1, Q("1 mm")),
    Sketcher.Constraint("DistanceX", 47, 2, 47, 1, Q("11 mm")),
    Sketcher.Constraint("DistanceX", 83, 2, 83, 1, Q("14 mm")),
    Sketcher.Constraint("DistanceY", 0, 2, 0, 1, Q("7 mm")),
    Sketcher.Constraint("DistanceX", -1, 1, 0, 2, Q("195 mm")),
    Sketcher.Constraint("DistanceY", -1, 1, 0, 2, Q("220 mm")),
    Sketcher.Constraint("DistanceY", -1, 1, 4, 2, Q("200 mm")),
    Sketcher.Constraint("DistanceY", -1, 1, 8, 2, Q("180 mm")),
    Sketcher.Constraint("DistanceY", -1, 1, 12, 2, Q("160 mm")),
    Sketcher.Constraint("DistanceY", -1, 1, 16, 2, Q("140 mm")),
    Sketcher.Constraint("DistanceY", -1, 1, 20, 2, Q("120 mm")),
    Sketcher.Constraint("DistanceY", -1, 1, 24, 2, Q("100 mm")),
    Sketcher.Constraint("DistanceY", -1, 1, 28, 2, Q("80 mm")),
    Sketcher.Constraint("DistanceY", -1, 1, 32, 2, Q("60 mm")),
    Sketcher.Constraint("DistanceY", -1, 1, 36, 2, Q("40 mm")),
    Sketcher.Constraint("DistanceY", -1, 1, 40, 2, Q("20 mm")),
    Sketcher.Constraint("DistanceX", -1, 1, 50, 2, Q("174 mm")),
    Sketcher.Constraint("DistanceX", -1, 1, 54, 2, Q("154 mm")),
    Sketcher.Constraint("DistanceX", -1, 1, 58, 2, Q("134 mm")),
    Sketcher.Constraint("DistanceX", -1, 1, 62, 2, Q("114 mm")),
    Sketcher.Constraint("DistanceX", -1, 1, 66, 2, Q("94 mm")),
    Sketcher.Constraint("DistanceX", -1, 1, 70, 2, Q("74 mm")),
    Sketcher.Constraint("DistanceX", -1, 1, 74, 2, Q("54 mm")),
    Sketcher.Constraint("DistanceX", -1, 1, 78, 2, Q("34 mm")),
])
pad6 = body.newObject("PartDesign::Pad", "Pad005")
pad6.Profile = sketch9
pad6.Length = 2

# Sketch on XY plane
sketch10 = body.newObject("Sketcher::SketchObject", "Sketch009")
sketch10.AttachmentSupport = (doc.getObject("XY_Plane"), [""])
sketch10.MapMode = "FlatFace"
sketch10.addGeometry([
    Part.Circle(V(96.1, 180.8, 0), V(0, 0, 1), 1.8),
    Part.Circle(V(126.2, 131.7, 0), V(0, 0, 1), 1.8),
    Part.Circle(V(83.1, 131.7, 0), V(0, 0, 1), 1.8),
], False)
sketch10.addConstraint([
    Sketcher.Constraint("Equal", 0, 1),
    Sketcher.Constraint("Equal", 1, 2),
    Sketcher.Constraint("Horizontal", 1, 3, 2, 3),
    Sketcher.Constraint("Diameter", 0, Q("3.5 mm")),
    Sketcher.Constraint("DistanceX", 2, 3, 0, 3, Q("13 mm")),
    Sketcher.Constraint("DistanceX", 0, 3, 1, 3, Q("30.1 mm")),
    Sketcher.Constraint("DistanceY", 1, 3, 0, 3, Q("49.1 mm")),
    Sketcher.Constraint("DistanceX", -1, 1, 0, 3, Q("96.11269 mm")),
    Sketcher.Constraint("DistanceY", -1, 1, 0, 3, Q("180.774445 mm")),
])
pocket4 = body.newObject("PartDesign::Pocket", "Pocket003")
pocket4.Profile = sketch10
pocket4.Type = "ThroughAll"
pocket4.Reversed = True

doc.recompute()
